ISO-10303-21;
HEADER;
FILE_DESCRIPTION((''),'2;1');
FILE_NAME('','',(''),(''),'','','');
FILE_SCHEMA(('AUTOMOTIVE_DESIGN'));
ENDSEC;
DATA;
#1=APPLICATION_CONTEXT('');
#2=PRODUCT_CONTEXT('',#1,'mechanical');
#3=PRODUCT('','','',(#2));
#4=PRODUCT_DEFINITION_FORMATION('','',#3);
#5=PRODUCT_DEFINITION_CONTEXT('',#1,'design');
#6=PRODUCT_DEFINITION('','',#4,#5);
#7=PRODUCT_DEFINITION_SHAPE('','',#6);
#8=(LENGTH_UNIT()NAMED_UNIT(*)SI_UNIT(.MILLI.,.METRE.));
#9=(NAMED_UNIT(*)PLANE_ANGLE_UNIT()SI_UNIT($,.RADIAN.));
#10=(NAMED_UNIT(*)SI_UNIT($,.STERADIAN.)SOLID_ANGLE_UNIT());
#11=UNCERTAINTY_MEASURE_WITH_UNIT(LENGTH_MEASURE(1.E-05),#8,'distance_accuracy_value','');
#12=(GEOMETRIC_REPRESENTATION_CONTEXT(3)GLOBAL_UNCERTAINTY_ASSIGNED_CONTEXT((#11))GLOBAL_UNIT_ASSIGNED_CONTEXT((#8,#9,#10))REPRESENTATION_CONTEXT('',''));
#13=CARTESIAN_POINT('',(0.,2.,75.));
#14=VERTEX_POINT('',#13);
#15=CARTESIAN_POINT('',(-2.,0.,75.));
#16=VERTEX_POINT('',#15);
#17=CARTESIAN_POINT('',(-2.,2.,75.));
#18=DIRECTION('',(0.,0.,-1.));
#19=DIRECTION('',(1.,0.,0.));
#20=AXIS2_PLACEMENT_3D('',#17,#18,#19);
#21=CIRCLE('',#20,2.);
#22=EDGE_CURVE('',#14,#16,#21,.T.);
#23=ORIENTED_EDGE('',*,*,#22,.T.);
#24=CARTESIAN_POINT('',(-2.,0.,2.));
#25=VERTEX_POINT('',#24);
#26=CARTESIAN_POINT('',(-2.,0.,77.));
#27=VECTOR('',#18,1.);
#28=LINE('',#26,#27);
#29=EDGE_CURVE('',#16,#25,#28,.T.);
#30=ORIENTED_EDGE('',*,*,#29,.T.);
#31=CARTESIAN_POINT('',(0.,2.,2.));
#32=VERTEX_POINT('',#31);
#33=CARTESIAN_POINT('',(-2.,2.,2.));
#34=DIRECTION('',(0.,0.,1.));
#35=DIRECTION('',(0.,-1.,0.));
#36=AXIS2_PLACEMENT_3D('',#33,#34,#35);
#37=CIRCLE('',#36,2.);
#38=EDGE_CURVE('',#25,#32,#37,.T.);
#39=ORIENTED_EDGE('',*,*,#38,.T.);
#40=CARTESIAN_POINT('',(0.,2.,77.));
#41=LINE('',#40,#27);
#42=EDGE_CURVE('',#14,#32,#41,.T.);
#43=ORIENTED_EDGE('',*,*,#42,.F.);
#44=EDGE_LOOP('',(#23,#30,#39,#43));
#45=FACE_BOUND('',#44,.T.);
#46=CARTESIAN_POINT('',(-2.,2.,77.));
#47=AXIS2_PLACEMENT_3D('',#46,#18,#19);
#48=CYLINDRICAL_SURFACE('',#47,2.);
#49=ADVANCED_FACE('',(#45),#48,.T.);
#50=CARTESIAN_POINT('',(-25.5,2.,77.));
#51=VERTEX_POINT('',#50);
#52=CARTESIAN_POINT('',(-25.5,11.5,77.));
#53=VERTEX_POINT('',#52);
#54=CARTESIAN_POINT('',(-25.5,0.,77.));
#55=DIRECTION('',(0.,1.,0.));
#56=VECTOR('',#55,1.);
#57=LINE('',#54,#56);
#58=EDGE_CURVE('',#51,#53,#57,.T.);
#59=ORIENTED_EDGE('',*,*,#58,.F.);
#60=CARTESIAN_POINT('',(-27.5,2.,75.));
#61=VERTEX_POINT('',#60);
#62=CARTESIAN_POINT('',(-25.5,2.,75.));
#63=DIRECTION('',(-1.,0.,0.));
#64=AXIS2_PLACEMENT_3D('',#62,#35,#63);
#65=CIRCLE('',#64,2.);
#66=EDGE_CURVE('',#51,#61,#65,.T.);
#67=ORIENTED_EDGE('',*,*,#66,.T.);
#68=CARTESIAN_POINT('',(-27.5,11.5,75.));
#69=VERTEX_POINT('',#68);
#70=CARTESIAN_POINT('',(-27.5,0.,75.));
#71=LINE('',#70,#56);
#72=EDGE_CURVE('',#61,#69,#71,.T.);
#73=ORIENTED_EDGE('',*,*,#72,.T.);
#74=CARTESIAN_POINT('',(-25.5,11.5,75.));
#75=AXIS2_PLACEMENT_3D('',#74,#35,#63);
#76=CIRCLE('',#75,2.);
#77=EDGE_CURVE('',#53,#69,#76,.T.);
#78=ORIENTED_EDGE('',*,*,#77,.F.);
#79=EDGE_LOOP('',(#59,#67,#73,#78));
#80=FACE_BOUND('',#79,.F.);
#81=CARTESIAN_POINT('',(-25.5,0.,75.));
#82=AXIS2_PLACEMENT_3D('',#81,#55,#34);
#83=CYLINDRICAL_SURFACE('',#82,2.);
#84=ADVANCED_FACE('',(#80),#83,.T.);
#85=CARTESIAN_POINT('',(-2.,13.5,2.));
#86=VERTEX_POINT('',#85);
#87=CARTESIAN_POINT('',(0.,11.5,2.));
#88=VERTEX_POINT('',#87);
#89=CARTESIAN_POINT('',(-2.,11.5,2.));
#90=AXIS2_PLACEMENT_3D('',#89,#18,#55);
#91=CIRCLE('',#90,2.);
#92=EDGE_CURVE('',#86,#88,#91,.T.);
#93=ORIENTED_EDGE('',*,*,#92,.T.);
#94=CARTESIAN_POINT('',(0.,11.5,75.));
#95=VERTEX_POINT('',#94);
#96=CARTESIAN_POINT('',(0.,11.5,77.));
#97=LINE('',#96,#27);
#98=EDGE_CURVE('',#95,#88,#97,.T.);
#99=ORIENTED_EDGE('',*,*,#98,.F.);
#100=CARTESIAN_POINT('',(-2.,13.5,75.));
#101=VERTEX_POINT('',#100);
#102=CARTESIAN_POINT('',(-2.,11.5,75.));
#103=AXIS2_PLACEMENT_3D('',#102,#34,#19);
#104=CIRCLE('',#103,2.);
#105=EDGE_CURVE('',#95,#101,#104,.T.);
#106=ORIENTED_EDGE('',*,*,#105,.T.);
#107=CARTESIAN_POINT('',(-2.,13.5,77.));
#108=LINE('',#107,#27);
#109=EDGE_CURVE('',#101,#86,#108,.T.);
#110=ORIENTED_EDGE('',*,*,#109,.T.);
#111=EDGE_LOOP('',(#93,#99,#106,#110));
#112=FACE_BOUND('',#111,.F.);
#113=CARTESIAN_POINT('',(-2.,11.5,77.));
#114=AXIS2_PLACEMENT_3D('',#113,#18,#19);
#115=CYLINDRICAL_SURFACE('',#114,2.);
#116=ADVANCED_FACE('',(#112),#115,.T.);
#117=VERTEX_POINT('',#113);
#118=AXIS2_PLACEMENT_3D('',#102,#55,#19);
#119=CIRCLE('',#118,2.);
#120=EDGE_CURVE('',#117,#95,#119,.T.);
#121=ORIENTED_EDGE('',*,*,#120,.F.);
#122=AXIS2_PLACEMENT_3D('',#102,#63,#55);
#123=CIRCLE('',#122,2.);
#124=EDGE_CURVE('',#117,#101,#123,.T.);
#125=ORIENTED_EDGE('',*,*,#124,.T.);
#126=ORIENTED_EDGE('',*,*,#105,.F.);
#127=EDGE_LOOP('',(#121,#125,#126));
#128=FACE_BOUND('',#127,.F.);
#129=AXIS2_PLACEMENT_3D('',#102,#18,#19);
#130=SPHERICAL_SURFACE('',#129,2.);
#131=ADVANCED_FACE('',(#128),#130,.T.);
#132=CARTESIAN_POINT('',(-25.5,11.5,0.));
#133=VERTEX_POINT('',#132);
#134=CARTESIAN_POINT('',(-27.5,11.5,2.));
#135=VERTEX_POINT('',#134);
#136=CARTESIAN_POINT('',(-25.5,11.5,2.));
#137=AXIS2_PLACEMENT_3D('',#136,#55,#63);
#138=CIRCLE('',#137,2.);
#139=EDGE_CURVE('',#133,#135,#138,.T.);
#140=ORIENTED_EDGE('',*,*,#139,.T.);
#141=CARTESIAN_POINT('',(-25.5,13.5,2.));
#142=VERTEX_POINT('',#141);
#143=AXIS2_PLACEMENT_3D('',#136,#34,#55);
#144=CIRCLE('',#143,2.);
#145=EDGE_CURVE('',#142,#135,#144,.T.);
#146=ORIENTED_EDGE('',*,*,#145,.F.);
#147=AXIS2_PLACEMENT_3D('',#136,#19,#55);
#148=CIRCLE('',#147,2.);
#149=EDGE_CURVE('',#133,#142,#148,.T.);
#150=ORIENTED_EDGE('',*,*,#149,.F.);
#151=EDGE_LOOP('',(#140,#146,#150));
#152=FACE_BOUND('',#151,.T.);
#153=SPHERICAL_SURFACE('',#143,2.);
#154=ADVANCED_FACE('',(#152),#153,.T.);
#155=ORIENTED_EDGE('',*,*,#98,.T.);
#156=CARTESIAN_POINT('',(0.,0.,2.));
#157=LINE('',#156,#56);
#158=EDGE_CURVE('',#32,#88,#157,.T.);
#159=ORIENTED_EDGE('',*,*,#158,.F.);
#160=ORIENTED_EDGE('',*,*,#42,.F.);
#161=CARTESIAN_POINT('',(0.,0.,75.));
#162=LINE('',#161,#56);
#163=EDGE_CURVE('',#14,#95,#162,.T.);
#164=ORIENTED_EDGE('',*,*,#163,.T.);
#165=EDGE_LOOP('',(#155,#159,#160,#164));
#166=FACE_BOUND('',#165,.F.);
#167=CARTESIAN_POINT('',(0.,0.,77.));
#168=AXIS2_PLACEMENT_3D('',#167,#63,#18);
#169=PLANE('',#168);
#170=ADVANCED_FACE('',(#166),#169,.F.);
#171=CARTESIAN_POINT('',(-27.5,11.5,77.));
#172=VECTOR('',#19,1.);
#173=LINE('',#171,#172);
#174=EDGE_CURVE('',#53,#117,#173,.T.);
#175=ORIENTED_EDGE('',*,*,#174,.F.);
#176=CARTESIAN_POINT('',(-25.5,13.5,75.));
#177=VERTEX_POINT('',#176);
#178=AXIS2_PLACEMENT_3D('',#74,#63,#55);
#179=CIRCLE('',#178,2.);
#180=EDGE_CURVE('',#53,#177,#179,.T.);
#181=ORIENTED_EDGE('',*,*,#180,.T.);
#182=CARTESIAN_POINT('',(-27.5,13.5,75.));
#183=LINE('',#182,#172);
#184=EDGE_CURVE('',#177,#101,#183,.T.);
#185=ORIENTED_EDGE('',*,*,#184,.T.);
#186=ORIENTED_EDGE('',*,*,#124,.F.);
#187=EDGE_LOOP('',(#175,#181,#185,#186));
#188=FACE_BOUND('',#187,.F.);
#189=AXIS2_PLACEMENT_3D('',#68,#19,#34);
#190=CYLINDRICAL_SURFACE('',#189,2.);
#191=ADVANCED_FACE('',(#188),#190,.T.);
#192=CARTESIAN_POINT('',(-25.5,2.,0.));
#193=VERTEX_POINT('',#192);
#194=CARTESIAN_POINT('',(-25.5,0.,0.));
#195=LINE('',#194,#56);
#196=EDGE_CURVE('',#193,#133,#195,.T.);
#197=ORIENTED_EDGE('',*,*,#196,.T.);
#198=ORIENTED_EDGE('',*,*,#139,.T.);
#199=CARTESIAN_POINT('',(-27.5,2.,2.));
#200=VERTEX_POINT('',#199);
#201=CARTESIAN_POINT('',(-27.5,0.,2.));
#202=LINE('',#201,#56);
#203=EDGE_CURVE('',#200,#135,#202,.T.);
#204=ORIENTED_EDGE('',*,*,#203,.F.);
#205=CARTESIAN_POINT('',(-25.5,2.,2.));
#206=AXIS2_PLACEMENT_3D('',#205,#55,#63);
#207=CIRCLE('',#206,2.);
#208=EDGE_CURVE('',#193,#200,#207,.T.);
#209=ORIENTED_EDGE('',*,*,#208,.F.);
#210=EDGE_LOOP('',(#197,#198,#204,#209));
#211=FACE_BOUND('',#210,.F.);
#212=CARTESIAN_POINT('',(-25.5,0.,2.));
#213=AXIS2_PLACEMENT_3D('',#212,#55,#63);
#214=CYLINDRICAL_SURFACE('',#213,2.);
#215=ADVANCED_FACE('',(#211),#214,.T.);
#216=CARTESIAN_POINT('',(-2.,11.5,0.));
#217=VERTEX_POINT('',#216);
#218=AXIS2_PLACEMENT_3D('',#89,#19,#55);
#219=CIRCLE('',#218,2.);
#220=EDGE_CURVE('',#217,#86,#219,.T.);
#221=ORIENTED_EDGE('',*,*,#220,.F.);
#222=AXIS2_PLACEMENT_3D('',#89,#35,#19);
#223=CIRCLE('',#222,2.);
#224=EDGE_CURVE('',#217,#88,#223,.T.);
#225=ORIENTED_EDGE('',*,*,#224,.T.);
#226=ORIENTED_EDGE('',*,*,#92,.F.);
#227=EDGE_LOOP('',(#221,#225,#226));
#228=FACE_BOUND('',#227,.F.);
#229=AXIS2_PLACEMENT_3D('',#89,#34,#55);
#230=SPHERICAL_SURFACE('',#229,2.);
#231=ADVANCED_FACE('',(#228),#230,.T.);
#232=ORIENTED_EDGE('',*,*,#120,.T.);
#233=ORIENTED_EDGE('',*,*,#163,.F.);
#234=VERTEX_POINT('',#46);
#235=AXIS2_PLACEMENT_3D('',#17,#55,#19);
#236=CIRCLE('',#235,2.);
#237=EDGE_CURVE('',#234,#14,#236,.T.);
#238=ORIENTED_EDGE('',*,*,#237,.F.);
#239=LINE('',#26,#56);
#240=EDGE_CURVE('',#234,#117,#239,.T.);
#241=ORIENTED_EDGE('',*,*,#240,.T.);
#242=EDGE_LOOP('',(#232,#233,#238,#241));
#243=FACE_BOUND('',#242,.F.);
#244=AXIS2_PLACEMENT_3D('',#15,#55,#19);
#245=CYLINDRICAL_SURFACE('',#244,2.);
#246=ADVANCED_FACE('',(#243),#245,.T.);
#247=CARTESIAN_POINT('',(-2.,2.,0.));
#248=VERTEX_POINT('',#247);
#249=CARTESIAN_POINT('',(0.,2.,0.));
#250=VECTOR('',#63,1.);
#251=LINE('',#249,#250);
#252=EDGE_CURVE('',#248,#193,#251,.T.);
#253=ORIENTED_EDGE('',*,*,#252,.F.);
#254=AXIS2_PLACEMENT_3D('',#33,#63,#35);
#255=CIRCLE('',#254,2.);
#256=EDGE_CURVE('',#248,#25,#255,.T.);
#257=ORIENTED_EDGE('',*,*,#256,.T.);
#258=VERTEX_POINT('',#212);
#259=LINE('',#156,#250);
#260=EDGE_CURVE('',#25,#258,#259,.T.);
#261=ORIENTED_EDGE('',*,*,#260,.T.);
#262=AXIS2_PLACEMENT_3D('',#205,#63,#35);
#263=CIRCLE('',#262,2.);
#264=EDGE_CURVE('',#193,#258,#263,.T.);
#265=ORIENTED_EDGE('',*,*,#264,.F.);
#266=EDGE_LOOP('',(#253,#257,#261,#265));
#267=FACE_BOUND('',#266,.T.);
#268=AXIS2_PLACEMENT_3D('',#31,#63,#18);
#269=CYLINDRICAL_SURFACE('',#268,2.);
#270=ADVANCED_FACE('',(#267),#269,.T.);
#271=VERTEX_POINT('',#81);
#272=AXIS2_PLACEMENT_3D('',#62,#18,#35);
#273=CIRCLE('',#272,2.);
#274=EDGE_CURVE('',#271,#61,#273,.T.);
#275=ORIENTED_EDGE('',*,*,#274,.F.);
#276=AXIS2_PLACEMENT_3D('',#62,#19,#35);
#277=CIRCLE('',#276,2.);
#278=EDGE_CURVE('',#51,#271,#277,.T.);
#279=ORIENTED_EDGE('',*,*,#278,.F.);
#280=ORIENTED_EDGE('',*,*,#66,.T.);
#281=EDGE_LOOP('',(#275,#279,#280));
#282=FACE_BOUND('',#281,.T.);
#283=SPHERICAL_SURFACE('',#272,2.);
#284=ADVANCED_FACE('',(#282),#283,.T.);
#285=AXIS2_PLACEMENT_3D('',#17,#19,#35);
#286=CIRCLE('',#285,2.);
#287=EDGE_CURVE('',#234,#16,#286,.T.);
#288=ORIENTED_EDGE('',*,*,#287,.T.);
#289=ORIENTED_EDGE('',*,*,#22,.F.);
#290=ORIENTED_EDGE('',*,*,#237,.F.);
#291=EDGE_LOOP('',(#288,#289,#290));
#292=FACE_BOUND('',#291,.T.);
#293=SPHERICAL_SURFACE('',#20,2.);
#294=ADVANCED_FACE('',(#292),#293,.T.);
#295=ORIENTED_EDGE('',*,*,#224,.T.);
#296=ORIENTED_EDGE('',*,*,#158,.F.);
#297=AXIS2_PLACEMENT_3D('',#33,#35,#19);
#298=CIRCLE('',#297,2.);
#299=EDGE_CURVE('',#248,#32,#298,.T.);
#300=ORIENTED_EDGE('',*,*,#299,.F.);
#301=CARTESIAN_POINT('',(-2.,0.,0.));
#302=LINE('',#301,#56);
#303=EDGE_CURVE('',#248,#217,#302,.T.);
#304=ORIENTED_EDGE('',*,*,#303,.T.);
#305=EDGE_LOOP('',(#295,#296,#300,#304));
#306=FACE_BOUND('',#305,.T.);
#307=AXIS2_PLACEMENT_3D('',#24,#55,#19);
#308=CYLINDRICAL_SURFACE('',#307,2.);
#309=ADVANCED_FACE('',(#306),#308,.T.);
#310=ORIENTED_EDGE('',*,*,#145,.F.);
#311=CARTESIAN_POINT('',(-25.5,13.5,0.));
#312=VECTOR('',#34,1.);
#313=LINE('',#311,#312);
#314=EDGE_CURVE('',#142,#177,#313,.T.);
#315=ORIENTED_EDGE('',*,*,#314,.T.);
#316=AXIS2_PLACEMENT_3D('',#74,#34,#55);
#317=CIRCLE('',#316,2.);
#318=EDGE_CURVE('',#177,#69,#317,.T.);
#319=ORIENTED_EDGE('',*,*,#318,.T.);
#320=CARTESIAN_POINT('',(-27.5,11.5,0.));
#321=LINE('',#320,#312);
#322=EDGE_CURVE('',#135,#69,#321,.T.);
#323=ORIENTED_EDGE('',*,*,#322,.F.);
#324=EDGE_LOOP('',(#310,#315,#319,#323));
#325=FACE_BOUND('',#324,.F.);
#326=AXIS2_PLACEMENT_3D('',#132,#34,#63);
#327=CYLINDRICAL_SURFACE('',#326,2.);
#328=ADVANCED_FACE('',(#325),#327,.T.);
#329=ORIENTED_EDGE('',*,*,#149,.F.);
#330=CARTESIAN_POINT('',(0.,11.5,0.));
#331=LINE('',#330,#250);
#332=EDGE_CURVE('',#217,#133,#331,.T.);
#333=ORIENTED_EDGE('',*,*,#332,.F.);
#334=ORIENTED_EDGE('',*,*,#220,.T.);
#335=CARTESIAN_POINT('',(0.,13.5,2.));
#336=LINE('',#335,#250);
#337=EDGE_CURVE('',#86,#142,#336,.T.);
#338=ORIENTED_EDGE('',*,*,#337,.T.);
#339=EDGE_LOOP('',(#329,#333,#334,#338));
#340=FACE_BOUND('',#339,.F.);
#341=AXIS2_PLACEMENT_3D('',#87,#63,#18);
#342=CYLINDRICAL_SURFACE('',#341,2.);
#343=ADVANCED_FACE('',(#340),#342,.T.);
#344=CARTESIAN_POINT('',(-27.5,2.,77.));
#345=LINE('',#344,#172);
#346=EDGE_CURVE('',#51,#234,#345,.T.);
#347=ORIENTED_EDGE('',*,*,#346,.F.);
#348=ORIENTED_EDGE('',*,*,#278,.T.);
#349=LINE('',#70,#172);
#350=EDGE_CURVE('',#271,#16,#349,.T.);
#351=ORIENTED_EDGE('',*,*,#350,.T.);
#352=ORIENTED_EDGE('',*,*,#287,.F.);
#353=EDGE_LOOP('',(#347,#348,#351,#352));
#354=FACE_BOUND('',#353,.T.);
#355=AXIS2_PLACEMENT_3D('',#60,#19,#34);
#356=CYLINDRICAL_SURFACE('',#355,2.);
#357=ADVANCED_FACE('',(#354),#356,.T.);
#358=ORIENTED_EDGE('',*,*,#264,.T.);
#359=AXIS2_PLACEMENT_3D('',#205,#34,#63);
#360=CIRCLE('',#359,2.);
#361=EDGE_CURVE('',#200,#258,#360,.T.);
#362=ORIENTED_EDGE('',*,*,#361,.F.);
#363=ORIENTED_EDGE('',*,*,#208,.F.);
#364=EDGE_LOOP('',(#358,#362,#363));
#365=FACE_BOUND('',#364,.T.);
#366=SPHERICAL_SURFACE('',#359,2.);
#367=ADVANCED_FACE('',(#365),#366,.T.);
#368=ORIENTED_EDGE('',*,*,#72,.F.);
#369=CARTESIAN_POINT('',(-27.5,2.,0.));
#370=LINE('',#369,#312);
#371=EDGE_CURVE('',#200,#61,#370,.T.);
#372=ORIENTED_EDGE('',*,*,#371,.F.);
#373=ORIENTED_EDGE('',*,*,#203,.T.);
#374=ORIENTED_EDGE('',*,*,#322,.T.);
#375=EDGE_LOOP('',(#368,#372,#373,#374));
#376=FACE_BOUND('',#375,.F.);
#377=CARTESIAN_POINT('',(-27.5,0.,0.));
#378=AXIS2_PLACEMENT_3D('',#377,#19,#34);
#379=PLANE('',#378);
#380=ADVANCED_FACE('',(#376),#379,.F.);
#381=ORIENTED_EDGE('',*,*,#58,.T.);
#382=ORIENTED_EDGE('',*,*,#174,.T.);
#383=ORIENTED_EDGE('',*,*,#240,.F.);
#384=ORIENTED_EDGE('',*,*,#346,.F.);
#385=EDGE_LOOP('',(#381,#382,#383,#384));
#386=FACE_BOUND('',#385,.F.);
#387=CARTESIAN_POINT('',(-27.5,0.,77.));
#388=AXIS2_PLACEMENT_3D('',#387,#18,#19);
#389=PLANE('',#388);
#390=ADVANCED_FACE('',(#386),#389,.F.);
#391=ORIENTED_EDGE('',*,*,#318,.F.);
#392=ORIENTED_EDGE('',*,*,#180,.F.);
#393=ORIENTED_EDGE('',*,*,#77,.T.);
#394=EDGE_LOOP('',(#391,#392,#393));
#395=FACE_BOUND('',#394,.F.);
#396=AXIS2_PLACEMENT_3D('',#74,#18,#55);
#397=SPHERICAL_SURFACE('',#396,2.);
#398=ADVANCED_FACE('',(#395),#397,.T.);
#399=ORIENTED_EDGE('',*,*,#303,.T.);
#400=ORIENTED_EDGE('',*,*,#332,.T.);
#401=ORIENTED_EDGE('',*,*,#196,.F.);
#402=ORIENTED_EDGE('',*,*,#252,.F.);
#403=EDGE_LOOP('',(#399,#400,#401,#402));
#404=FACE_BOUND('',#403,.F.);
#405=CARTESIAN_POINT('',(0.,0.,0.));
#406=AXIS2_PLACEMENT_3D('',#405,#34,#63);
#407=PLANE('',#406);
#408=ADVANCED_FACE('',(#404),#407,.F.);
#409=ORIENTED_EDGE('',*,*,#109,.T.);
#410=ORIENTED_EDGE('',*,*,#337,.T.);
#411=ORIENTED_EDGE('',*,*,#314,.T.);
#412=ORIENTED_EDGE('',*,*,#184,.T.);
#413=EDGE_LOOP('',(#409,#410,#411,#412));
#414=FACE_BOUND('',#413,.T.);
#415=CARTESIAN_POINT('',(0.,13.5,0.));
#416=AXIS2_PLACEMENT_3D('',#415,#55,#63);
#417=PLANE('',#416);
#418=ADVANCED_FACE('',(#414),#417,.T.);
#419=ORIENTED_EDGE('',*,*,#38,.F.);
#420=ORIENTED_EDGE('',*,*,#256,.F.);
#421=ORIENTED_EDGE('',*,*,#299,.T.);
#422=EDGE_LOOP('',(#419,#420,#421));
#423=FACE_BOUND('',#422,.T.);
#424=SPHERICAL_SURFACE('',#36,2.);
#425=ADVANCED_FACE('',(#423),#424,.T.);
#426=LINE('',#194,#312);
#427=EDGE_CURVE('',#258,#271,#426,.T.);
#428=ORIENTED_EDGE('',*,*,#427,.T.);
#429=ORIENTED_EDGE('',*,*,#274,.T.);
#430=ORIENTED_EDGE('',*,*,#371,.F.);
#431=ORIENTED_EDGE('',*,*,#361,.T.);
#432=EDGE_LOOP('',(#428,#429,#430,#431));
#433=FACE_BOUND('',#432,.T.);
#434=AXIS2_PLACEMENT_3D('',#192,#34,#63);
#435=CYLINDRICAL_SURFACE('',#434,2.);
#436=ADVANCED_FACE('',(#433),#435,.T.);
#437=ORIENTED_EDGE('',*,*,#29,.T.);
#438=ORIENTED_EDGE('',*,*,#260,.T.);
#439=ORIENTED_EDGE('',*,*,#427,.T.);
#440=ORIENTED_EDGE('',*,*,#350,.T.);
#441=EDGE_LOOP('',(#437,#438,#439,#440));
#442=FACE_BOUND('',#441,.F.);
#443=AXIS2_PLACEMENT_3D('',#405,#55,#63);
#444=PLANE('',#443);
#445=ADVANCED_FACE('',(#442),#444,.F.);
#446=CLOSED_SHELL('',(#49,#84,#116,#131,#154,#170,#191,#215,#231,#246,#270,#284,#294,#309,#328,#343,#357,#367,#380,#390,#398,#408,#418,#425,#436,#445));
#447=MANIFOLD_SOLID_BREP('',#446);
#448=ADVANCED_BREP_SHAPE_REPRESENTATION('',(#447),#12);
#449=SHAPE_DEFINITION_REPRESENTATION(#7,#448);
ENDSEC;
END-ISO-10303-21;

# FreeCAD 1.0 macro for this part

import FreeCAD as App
import Part
import Sketcher
Q = App.Units.Quantity

doc = App.newDocument("Part")
params = doc.addObject("Spreadsheet::Sheet", "Params")
for row, (alias, value) in enumerate([
    ("sketch1_height", "77 mm"),
    ("sketch1_width", "27.5 mm"),
    ("pad1_length", "13.5 mm"),
    ("fillet_radius", "2 mm"),
], start=1):
    params.set(f"A{row}", alias)
    params.set(f"B{row}", "=" + value)
    params.setAlias(f"B{row}", alias)

body = doc.addObject("PartDesign::Body", "Body")

sketch1 = body.newObject("Sketcher::SketchObject", "Sketch")
sketch1.AttachmentSupport = (doc.getObject("XZ_Plane"), [""])
sketch1.MapMode = "FlatFace"
sketch1.addGeometry([
    Part.LineSegment(App.Vector(0, 77, 0), App.Vector(0, 0, 0)),
    Part.LineSegment(App.Vector(0, 0, 0), App.Vector(-28, 0, 0)),
    Part.LineSegment(App.Vector(-28, 0, 0), App.Vector(-28, 77, 0)),
    Part.LineSegment(App.Vector(-28, 77, 0), App.Vector(0, 77, 0)),
], False)
sketch1.addConstraint([
    Sketcher.Constraint("Coincident", 0, 2, 1, 1),
    Sketcher.Constraint("Coincident", 1, 2, 2, 1),
    Sketcher.Constraint("Coincident", 2, 2, 3, 1),
    Sketcher.Constraint("Coincident", 3, 2, 0, 1),
    Sketcher.Constraint("Vertical", 0),
    Sketcher.Constraint("Horizontal", 1),
    Sketcher.Constraint("Vertical", 2),
    Sketcher.Constraint("Horizontal", 3),
    Sketcher.Constraint("Coincident", 0, 2, -1, 1),
    Sketcher.Constraint("DistanceY", 0, 2, 0, 1, Q("77 mm")),
    Sketcher.Constraint("DistanceX", 1, 2, 1, 1, Q("27.5 mm")),
])
sketch1.setExpression("Constraints[9]", "Params.sketch1_height")
sketch1.setExpression("Constraints[10]", "Params.sketch1_width")
pad1 = body.newObject("PartDesign::Pad", "Pad")
pad1.Profile = sketch1
pad1.setExpression("Length", "Params.pad1_length")
pad1.Reversed = True
doc.recompute()

fillet = body.newObject("PartDesign::Fillet", "Fillet")
fillet.Base = (pad1, ["Edge1"])
fillet.UseAllEdges = True
fillet.setExpression("Radius", "Params.fillet_radius")

doc.recompute()
